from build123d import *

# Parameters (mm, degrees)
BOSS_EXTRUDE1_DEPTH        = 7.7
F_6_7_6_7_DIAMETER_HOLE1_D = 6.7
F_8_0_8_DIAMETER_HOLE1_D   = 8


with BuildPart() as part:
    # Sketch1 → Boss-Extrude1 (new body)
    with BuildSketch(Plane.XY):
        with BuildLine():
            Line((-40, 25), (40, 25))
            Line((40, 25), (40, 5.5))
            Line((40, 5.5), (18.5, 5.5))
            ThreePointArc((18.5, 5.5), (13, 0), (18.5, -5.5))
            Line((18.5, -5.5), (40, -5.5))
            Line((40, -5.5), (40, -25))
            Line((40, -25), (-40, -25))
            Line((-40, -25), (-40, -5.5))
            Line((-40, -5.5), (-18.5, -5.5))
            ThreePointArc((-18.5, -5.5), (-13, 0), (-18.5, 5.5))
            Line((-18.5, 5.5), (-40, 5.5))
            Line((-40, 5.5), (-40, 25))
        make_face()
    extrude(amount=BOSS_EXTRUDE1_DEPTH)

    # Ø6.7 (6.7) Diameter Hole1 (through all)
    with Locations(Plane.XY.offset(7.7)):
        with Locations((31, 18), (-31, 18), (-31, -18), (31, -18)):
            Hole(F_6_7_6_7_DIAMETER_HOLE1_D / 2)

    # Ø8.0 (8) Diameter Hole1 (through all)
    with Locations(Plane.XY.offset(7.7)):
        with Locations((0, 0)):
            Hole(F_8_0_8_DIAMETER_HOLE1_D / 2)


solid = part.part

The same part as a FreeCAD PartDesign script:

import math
import FreeCAD as App
import Part
import Sketcher

doc = App.newDocument("Part")
body = doc.addObject("PartDesign::Body", "Body")

sketch1 = doc.addObject("Sketcher::SketchObject", "Sketch")
body.addObject(sketch1)
sketch1.AttachmentSupport = (doc.XY_Plane, [""])
sketch1.MapMode = "FlatFace"
sketch1.addGeometry([
    Part.LineSegment(App.Vector(40, 25, 0), App.Vector(-40, 25, 0)),
    Part.LineSegment(App.Vector(-40, 25, 0), App.Vector(-40, 6, 0)),
    Part.LineSegment(App.Vector(-40, 6, 0), App.Vector(-18, 6, 0)),
    Part.ArcOfCircle(Part.Circle(App.Vector(-18, 0, 0), App.Vector(0, 0, 1), 6), math.radians(-90), math.radians(90)),
    Part.LineSegment(App.Vector(-18, -6, 0), App.Vector(-40, -6, 0)),
    Part.LineSegment(App.Vector(-40, -6, 0), App.Vector(-40, -25, 0)),
    Part.LineSegment(App.Vector(-40, -25, 0), App.Vector(40, -25, 0)),
    Part.LineSegment(App.Vector(40, -25, 0), App.Vector(40, -6, 0)),
    Part.LineSegment(App.Vector(40, -6, 0), App.Vector(18, -6, 0)),
    Part.ArcOfCircle(Part.Circle(App.Vector(18, 0, 0), App.Vector(0, 0, 1), 6), math.radians(90), math.radians(270)),
    Part.LineSegment(App.Vector(18, 6, 0), App.Vector(40, 6, 0)),
    Part.LineSegment(App.Vector(40, 6, 0), App.Vector(40, 25, 0)),
], False)
sketch1.addConstraint([
    Sketcher.Constraint("Coincident", 0, 2, 1, 1),
    Sketcher.Constraint("Coincident", 1, 2, 2, 1),
    Sketcher.Constraint("Tangent", 2, 2, 3, 2),
    Sketcher.Constraint("Tangent", 3, 1, 4, 1),
    Sketcher.Constraint("Coincident", 4, 2, 5, 1),
    Sketcher.Constraint("Coincident", 5, 2, 6, 1),
    Sketcher.Constraint("Coincident", 6, 2, 7, 1),
    Sketcher.Constraint("Coincident", 7, 2, 8, 1),
    Sketcher.Constraint("Tangent", 8, 2, 9, 2),
    Sketcher.Constraint("Tangent", 9, 1, 10, 1),
    Sketcher.Constraint("Coincident", 10, 2, 11, 1),
    Sketcher.Constraint("Coincident", 11, 2, 0, 1),
    Sketcher.Constraint("Horizontal", 0),
    Sketcher.Constraint("Vertical", 1),
    Sketcher.Constraint("Horizontal", 2),
    Sketcher.Constraint("Horizontal", 4),
    Sketcher.Constraint("Vertical", 5),
    Sketcher.Constraint("Horizontal", 6),
    Sketcher.Constraint("Vertical", 7),
    Sketcher.Constraint("Horizontal", 8),
    Sketcher.Constraint("Horizontal", 10),
    Sketcher.Constraint("Vertical", 11),
    Sketcher.Constraint("Equal", 3, 9),
    Sketcher.Constraint("Symmetric", 3, 3, 9, 3, -1, 1),
    Sketcher.Constraint("Symmetric", 0, 2, 6, 2, -1, 1),
    Sketcher.Constraint("Symmetric", 4, 2, 7, 2, -2),
    Sketcher.Constraint("Vertical", 7, 2, 10, 2),
    Sketcher.Constraint("Radius", 3, 5.5),
    Sketcher.Constraint("DistanceX", 0, 2, 0, 1, 80.0),
    Sketcher.Constraint("DistanceX", 2, 1, 2, 2, 21.5),
    Sketcher.Constraint("DistanceY", 1, 2, 1, 1, 19.5),
])
pad1 = doc.addObject("PartDesign::Pad", "Pad")
body.addObject(pad1)
pad1.Profile = sketch1
pad1.Length = 7.7

sketch2 = doc.addObject("Sketcher::SketchObject", "Sketch001")
body.addObject(sketch2)
sketch2.AttachmentSupport = (doc.XY_Plane, [""])
sketch2.MapMode = "FlatFace"
sketch2.AttachmentOffset = App.Placement(App.Vector(0, 0, 7.7), App.Rotation())
sketch2.addGeometry([
    Part.Circle(App.Vector(31, 18, 0), App.Vector(0, 0, 1), 3.4),
    Part.Circle(App.Vector(-31, 18, 0), App.Vector(0, 0, 1), 3.4),
    Part.Circle(App.Vector(-31, -18, 0), App.Vector(0, 0, 1), 3.4),
    Part.Circle(App.Vector(31, -18, 0), App.Vector(0, 0, 1), 3.4),
], False)
sketch2.addConstraint([
    Sketcher.Constraint("Equal", 0, 1),
    Sketcher.Constraint("Equal", 1, 2),
    Sketcher.Constraint("Equal", 2, 3),
    Sketcher.Constraint("Symmetric", 0, 3, 2, 3, -1, 1),
    Sketcher.Constraint("Symmetric", 1, 3, 3, 3, -1, 1),
    Sketcher.Constraint("Symmetric", 0, 3, 1, 3, -2),
    Sketcher.Constraint("Diameter", 0, 6.7),
    Sketcher.Constraint("DistanceX", -1, 1, 0, 3, 31.0),
    Sketcher.Constraint("DistanceY", -1, 1, 0, 3, 18.0),
])
doc.recompute()
hole = doc.addObject("PartDesign::Hole", "Hole")
body.addObject(hole)
hole.Profile = sketch2
hole.ThreadType = "None"
hole.Diameter = 6.7
hole.DepthType = "ThroughAll"

sketch3 = doc.addObject("Sketcher::SketchObject", "Sketch002")
body.addObject(sketch3)
sketch3.AttachmentSupport = (doc.XY_Plane, [""])
sketch3.MapMode = "FlatFace"
sketch3.AttachmentOffset = App.Placement(App.Vector(0, 0, 7.7), App.Rotation())
sketch3.addGeometry(Part.Circle(App.Vector(0, 0, 0), App.Vector(0, 0, 1), 4), False)
sketch3.addConstraint([
    Sketcher.Constraint("Coincident", 0, 3, -1, 1),
    Sketcher.Constraint("Diameter", 0, 8.0),
])
doc.recompute()
hole2 = doc.addObject("PartDesign::Hole", "Hole001")
body.addObject(hole2)
hole2.Profile = sketch3
hole2.ThreadType = "None"
hole2.Diameter = 8
hole2.DepthType = "ThroughAll"

doc.recompute()
